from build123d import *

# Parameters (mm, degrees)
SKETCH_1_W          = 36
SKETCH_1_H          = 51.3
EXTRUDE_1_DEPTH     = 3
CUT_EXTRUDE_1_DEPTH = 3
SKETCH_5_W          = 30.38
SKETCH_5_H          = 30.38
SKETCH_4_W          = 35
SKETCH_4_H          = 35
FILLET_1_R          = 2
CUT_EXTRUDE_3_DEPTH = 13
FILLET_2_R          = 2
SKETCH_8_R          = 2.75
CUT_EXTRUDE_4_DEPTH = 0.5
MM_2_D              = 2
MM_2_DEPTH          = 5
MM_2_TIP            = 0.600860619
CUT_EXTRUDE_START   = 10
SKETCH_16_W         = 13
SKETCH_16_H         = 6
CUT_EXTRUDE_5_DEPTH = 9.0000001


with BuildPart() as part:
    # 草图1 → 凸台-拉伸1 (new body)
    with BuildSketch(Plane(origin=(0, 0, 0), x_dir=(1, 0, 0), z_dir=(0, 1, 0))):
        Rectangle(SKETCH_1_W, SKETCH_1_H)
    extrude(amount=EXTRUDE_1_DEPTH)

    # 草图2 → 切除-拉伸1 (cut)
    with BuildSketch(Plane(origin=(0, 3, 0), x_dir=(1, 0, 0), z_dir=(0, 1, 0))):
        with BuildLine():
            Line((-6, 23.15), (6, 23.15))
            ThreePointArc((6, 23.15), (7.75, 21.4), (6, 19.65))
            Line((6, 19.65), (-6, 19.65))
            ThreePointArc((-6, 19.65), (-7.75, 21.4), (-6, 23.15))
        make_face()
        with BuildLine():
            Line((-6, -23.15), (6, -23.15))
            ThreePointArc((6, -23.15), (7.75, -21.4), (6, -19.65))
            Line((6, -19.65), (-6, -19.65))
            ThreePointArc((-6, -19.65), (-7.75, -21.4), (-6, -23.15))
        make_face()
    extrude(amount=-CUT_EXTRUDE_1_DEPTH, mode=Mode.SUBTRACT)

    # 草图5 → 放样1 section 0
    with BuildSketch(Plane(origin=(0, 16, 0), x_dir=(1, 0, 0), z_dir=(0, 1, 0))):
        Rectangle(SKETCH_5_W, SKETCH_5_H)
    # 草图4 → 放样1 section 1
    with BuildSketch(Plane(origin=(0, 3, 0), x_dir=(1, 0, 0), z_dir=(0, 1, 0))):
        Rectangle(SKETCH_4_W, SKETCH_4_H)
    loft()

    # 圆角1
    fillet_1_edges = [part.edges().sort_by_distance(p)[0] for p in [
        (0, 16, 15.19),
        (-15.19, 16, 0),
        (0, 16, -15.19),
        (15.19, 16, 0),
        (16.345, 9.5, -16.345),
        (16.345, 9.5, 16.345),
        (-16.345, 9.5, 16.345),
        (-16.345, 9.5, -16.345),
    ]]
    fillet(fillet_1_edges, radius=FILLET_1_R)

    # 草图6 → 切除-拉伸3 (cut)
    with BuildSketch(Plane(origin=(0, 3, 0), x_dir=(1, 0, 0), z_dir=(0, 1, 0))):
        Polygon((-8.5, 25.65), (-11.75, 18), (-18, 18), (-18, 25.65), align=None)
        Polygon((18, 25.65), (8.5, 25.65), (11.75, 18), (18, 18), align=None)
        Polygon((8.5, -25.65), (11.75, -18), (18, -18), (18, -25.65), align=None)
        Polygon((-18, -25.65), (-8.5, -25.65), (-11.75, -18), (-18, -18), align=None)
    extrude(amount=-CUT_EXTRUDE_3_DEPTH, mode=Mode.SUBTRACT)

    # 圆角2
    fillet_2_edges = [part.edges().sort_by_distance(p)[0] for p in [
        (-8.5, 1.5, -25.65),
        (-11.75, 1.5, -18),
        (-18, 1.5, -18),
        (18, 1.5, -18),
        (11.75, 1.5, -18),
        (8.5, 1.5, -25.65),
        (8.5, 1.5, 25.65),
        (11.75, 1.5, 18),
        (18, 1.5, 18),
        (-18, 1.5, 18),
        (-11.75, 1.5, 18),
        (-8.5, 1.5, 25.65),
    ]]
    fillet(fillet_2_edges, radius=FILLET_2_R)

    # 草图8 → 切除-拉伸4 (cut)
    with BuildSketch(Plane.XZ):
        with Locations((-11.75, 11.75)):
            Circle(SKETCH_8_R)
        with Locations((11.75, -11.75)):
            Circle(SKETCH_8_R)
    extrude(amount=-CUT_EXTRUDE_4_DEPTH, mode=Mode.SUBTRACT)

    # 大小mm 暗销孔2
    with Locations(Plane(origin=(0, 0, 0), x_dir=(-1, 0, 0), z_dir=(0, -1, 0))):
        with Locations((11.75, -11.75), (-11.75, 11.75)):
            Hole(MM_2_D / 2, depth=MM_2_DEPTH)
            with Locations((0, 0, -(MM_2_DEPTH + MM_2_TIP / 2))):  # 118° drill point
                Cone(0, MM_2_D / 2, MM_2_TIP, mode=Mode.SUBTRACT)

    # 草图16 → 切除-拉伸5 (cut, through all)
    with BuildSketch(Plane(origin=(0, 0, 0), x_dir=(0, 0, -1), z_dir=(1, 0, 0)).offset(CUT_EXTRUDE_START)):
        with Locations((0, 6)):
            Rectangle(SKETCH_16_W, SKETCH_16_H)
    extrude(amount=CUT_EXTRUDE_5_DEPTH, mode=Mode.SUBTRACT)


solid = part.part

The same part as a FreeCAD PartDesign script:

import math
import FreeCAD as App
import Part
import Sketcher
Q = App.Units.Quantity


def edges_at(feature, points):
    """Names of the edges that pass closest to the given points."""
    edges = feature.Shape.Edges
    near = lambda p: min(range(len(edges)), key=lambda i: edges[i].distToShape(Part.Vertex(*p))[0])
    return sorted({f"Edge{near(p) + 1}" for p in points})


def add_polygon(sketch, points):
    """Adds a closed chain of lines whose ends are joined by coincident constraints."""
    first, n = sketch.GeometryCount, len(points)
    for a, b in zip(points, points[1:] + points[:1]):
        sketch.addGeometry(Part.LineSegment(App.Vector(*a, 0), App.Vector(*b, 0)), False)
    for i in range(n):
        sketch.addConstraint(Sketcher.Constraint("Coincident", first + i, 2, first + (i + 1) % n, 1))

doc = App.newDocument("Part")
params = doc.addObject("Spreadsheet::Sheet", "Params")
for row, (alias, value) in enumerate([
    ("sketch1_width", "36 mm"),
    ("sketch1_height", "51.3 mm"),
    ("pad1_length", "3 mm"),
    ("sketch2_width", "12 mm"),
    ("sketch2_radius", "1.75 mm"),
    ("pocket1_length", "3 mm"),
    ("sketch3_width", "30.38 mm"),
    ("sketch4_width", "35 mm"),
    ("fillet_radius", "2 mm"),
    ("sketch5_width", "9.5 mm"),
    ("sketch5_width2", "6.25 mm"),
    ("sketch5_height", "7.65 mm"),
    ("pocket2_length", "13 mm"),
    ("fillet2_radius", "2 mm"),
    ("sketch6_diameter", "5.5 mm"),
    ("pocket3_length", "0.5 mm"),
    ("sketch7_diameter", "2 mm"),
    ("hole_diameter", "2 mm"),
    ("hole_depth", "5 mm"),
    ("sketch8_width", "6 mm"),
    ("sketch8_height", "13 mm"),
], start=1):
    params.set(f"A{row}", alias)
    params.set(f"B{row}", "=" + value)
    params.setAlias(f"B{row}", alias)

body = doc.addObject("PartDesign::Body", "Body")

# Sketch on XZ plane
sketch1 = body.newObject("Sketcher::SketchObject", "Sketch")
sketch1.AttachmentSupport = (doc.getObject("XZ_Plane"), [""])
sketch1.MapMode = "FlatFace"
add_polygon(sketch1, [(-18, -25.65), (-18, 25.65), (18, 25.65), (18, -25.65)])  # lines 0-3
sketch1.addConstraint([
    Sketcher.Constraint("Vertical", 0),
    Sketcher.Constraint("Horizontal", 1),
    Sketcher.Constraint("Vertical", 2),
    Sketcher.Constraint("Horizontal", 3),
    Sketcher.Constraint("Symmetric", 0, 2, 2, 2, -1, 1),
    Sketcher.Constraint("DistanceX", 1, 1, 1, 2, Q("36 mm")),
    Sketcher.Constraint("DistanceY", 0, 1, 0, 2, Q("51.3 mm")),
])
sketch1.setExpression("Constraints[9]", "Params.sketch1_width")
sketch1.setExpression("Constraints[10]", "Params.sketch1_height")
pad1 = body.newObject("PartDesign::Pad", "Pad")
pad1.Profile = sketch1
pad1.setExpression("Length", "Params.pad1_length")
pad1.Reversed = True

# Sketch on XZ plane
sketch2 = body.newObject("Sketcher::SketchObject", "Sketch001")
sketch2.AttachmentSupport = (doc.getObject("XZ_Plane"), [""])
sketch2.MapMode = "FlatFace"
sketch2.AttachmentOffset = App.Placement(App.Vector(0, 0, -3), App.Rotation())
sketch2.addGeometry([
    Part.LineSegment(App.Vector(6, -23.15, 0), App.Vector(-6, -23.15, 0)),  # 0
    Part.ArcOfCircle(Part.Circle(App.Vector(-6, -21.4, 0), App.Vector(0, 0, 1), 1.75), math.radians(90), math.radians(270)),  # 1
    Part.LineSegment(App.Vector(-6, -19.65, 0), App.Vector(6, -19.65, 0)),  # 2
    Part.ArcOfCircle(Part.Circle(App.Vector(6, -21.4, 0), App.Vector(0, 0, 1), 1.75), math.radians(-90), math.radians(90)),  # 3
    Part.LineSegment(App.Vector(-6, 23.15, 0), App.Vector(6, 23.15, 0)),  # 4
    Part.ArcOfCircle(Part.Circle(App.Vector(6, 21.4, 0), App.Vector(0, 0, 1), 1.75), math.radians(-90), math.radians(90)),  # 5
    Part.LineSegment(App.Vector(6, 19.65, 0), App.Vector(-6, 19.65, 0)),  # 6
    Part.ArcOfCircle(Part.Circle(App.Vector(-6, 21.4, 0), App.Vector(0, 0, 1), 1.75), math.radians(90), math.radians(270)),  # 7
], False)
sketch2.addConstraint([
    Sketcher.Constraint("Tangent", 0, 2, 1, 2),
    Sketcher.Constraint("Tangent", 1, 1, 2, 1),
    Sketcher.Constraint("Tangent", 2, 2, 3, 2),
    Sketcher.Constraint("Tangent", 3, 1, 0, 1),
    Sketcher.Constraint("Tangent", 4, 2, 5, 2),
    Sketcher.Constraint("Tangent", 5, 1, 6, 1),
    Sketcher.Constraint("Tangent", 6, 2, 7, 2),
    Sketcher.Constraint("Tangent", 7, 1, 4, 1),
    Sketcher.Constraint("Horizontal", 0),
    Sketcher.Constraint("Horizontal", 2),
    Sketcher.Constraint("Horizontal", 4),
    Sketcher.Constraint("Horizontal", 6),
    Sketcher.Constraint("Equal", 3, 5),
    Sketcher.Constraint("Symmetric", 1, 3, 5, 3, -1, 1),
    Sketcher.Constraint("Vertical", 3, 3, 5, 3),
    Sketcher.Constraint("Vertical", 1, 3, 7, 3),
    Sketcher.Constraint("DistanceX", 0, 2, 0, 1, Q("12 mm")),
    Sketcher.Constraint("Radius", 1, Q("1.75 mm")),
    Sketcher.Constraint("DistanceY", 1, 3, -1, 1, Q("21.4 mm")),
])
sketch2.setExpression("Constraints[16]", "Params.sketch2_width")
sketch2.setExpression("Constraints[17]", "Params.sketch2_radius")
pocket1 = body.newObject("PartDesign::Pocket", "Pocket")
pocket1.Profile = sketch2
pocket1.setExpression("Length", "Params.pocket1_length")
pocket1.Reversed = True

# Sketch on XZ plane
sketch3 = body.newObject("Sketcher::SketchObject", "Sketch002")
sketch3.AttachmentSupport = (doc.getObject("XZ_Plane"), [""])
sketch3.MapMode = "FlatFace"
sketch3.AttachmentOffset = App.Placement(App.Vector(0, 0, -16), App.Rotation())
add_polygon(sketch3, [(-15.19, -15.19), (-15.19, 15.19), (15.19, 15.19), (15.19, -15.19)])  # lines 0-3
sketch3.addConstraint([
    Sketcher.Constraint("Vertical", 0),
    Sketcher.Constraint("Horizontal", 1),
    Sketcher.Constraint("Vertical", 2),
    Sketcher.Constraint("Horizontal", 3),
    Sketcher.Constraint("Symmetric", 0, 2, 2, 2, -1, 1),
    Sketcher.Constraint("Equal", 3, 0),
    Sketcher.Constraint("DistanceX", 1, 1, 1, 2, Q("30.38 mm")),
])
sketch3.setExpression("Constraints[10]", "Params.sketch3_width")

# Sketch on XZ plane
sketch4 = body.newObject("Sketcher::SketchObject", "Sketch003")
sketch4.AttachmentSupport = (doc.getObject("XZ_Plane"), [""])
sketch4.MapMode = "FlatFace"
sketch4.AttachmentOffset = App.Placement(App.Vector(0, 0, -3), App.Rotation())
add_polygon(sketch4, [(-17.5, -17.5), (-17.5, 17.5), (17.5, 17.5), (17.5, -17.5)])  # lines 0-3
sketch4.addConstraint([
    Sketcher.Constraint("Vertical", 0),
    Sketcher.Constraint("Horizontal", 1),
    Sketcher.Constraint("Vertical", 2),
    Sketcher.Constraint("Horizontal", 3),
    Sketcher.Constraint("Symmetric", 0, 2, 2, 2, -1, 1),
    Sketcher.Constraint("Equal", 3, 0),
    Sketcher.Constraint("DistanceX", 1, 1, 1, 2, Q("35 mm")),
])
sketch4.setExpression("Constraints[10]", "Params.sketch4_width")

additiveloft = body.newObject("PartDesign::AdditiveLoft", "AdditiveLoft")
additiveloft.Profile = sketch3
additiveloft.Sections = [sketch4]
doc.recompute()

fillet = body.newObject("PartDesign::Fillet", "Fillet")
fillet.Base = (additiveloft, edges_at(additiveloft, [
    (0, 16, 15.19),
    (-15.19, 16, 0),
    (0, 16, -15.19),
    (15.19, 16, 0),
    (16.345, 9.5, -16.345),
    (16.345, 9.5, 16.345),
    (-16.345, 9.5, 16.345),
    (-16.345, 9.5, -16.345),
]))
fillet.setExpression("Radius", "Params.fillet_radius")

# Sketch on XZ plane
sketch5 = body.newObject("Sketcher::SketchObject", "Sketch004")
sketch5.AttachmentSupport = (doc.getObject("XZ_Plane"), [""])
sketch5.MapMode = "FlatFace"
sketch5.AttachmentOffset = App.Placement(App.Vector(0, 0, -3), App.Rotation())
add_polygon(sketch5, [(-11.75, -18), (-8.5, -25.65), (-18, -25.65), (-18, -18)])  # lines 0-3
add_polygon(sketch5, [(18, -25.65), (8.5, -25.65), (11.75, -18), (18, -18)])  # lines 4-7
add_polygon(sketch5, [(11.75, 18), (8.5, 25.65), (18, 25.65), (18, 18)])  # lines 8-11
add_polygon(sketch5, [(-18, 25.65), (-8.5, 25.65), (-11.75, 18), (-18, 18)])  # lines 12-15
sketch5.addConstraint([
    Sketcher.Constraint("Horizontal", 1),
    Sketcher.Constraint("Vertical", 2),
    Sketcher.Constraint("Horizontal", 3),
    Sketcher.Constraint("Horizontal", 4),
    Sketcher.Constraint("Horizontal", 6),
    Sketcher.Constraint("Vertical", 7),
    Sketcher.Constraint("Horizontal", 9),
    Sketcher.Constraint("Vertical", 10),
    Sketcher.Constraint("Horizontal", 11),
    Sketcher.Constraint("Horizontal", 12),
    Sketcher.Constraint("Horizontal", 14),
    Sketcher.Constraint("Vertical", 15),
    Sketcher.Constraint("Symmetric", 0, 2, 8, 2, -1, 1),
    Sketcher.Constraint("Symmetric", 2, 2, 10, 2, -1, 1),
    Sketcher.Constraint("Symmetric", 4, 2, 12, 2, -1, 1),
    Sketcher.Constraint("Symmetric", 5, 2, 13, 2, -1, 1),
    Sketcher.Constraint("Symmetric", 0, 2, 4, 2, -2),
    Sketcher.Constraint("Symmetric", 3, 2, 5, 2, -2),
    Sketcher.Constraint("Parallel", 0, 8),
    Sketcher.Constraint("Vertical", 7, 2, 9, 2),
    Sketcher.Constraint("Vertical", 2, 2, 14, 2),
    Sketcher.Constraint("DistanceX", 1, 2, 1, 1, Q("9.5 mm")),
    Sketcher.Constraint("DistanceX", 1, 2, -1, 1, Q("18 mm")),
    Sketcher.Constraint("DistanceY", 2, 2, -1, 1, Q("18 mm")),
    Sketcher.Constraint("DistanceX", 3, 1, 3, 2, Q("6.25 mm")),
    Sketcher.Constraint("DistanceY", 2, 1, 2, 2, Q("7.65 mm")),
])
sketch5.setExpression("Constraints[37]", "Params.sketch5_width")
sketch5.setExpression("Constraints[40]", "Params.sketch5_width2")
sketch5.setExpression("Constraints[41]", "Params.sketch5_height")
pocket2 = body.newObject("PartDesign::Pocket", "Pocket001")
pocket2.Profile = sketch5
pocket2.setExpression("Length", "Params.pocket2_length")
pocket2.Reversed = True
doc.recompute()

fillet2 = body.newObject("PartDesign::Fillet", "Fillet001")
fillet2.Base = (pocket2, edges_at(pocket2, [
    (-8.5, 1.5, -25.65),
    (-11.75, 1.5, -18),
    (-18, 1.5, -18),
    (18, 1.5, -18),
    (11.75, 1.5, -18),
    (8.5, 1.5, -25.65),
    (8.5, 1.5, 25.65),
    (11.75, 1.5, 18),
    (18, 1.5, 18),
    (-18, 1.5, 18),
    (-11.75, 1.5, 18),
    (-8.5, 1.5, 25.65),
]))
fillet2.setExpression("Radius", "Params.fillet2_radius")

# Sketch on XZ plane
sketch6 = body.newObject("Sketcher::SketchObject", "Sketch005")
sketch6.AttachmentSupport = (doc.getObject("XZ_Plane"), [""])
sketch6.MapMode = "FlatFace"
sketch6.addGeometry([
    Part.Circle(App.Vector(-11.75, 11.75, 0), App.Vector(0, 0, 1), 2.75),
    Part.Circle(App.Vector(11.75, -11.75, 0), App.Vector(0, 0, 1), 2.75),
], False)
sketch6.addConstraint([
    Sketcher.Constraint("Equal", 0, 1),
    Sketcher.Constraint("Symmetric", 0, 3, 1, 3, -1, 1),
    Sketcher.Constraint("Diameter", 0, Q("5.5 mm")),
    Sketcher.Constraint("DistanceX", 0, 3, 1, 3, Q("23.5 mm")),
    Sketcher.Constraint("DistanceY", 1, 3, 0, 3, Q("23.5 mm")),
])
sketch6.setExpression("Constraints[2]", "Params.sketch6_diameter")
pocket3 = body.newObject("PartDesign::Pocket", "Pocket002")
pocket3.Profile = sketch6
pocket3.setExpression("Length", "Params.pocket3_length")

# Sketch on XZ plane
sketch7 = body.newObject("Sketcher::SketchObject", "Sketch006")
sketch7.AttachmentSupport = (doc.getObject("XZ_Plane"), [""])
sketch7.MapMode = "FlatFace"
sketch7.addGeometry([
    Part.Circle(App.Vector(-11.75, 11.75, 0), App.Vector(0, 0, 1), 1),
    Part.Circle(App.Vector(11.75, -11.75, 0), App.Vector(0, 0, 1), 1),
], False)
sketch7.addConstraint([
    Sketcher.Constraint("Equal", 0, 1),
    Sketcher.Constraint("Symmetric", 0, 3, 1, 3, -1, 1),
    Sketcher.Constraint("Diameter", 0, Q("2 mm")),
    Sketcher.Constraint("DistanceX", 0, 3, 1, 3, Q("23.5 mm")),
    Sketcher.Constraint("DistanceY", 1, 3, 0, 3, Q("23.5 mm")),
])
sketch7.setExpression("Constraints[2]", "Params.sketch7_diameter")
doc.recompute()
hole = body.newObject("PartDesign::Hole", "Hole")
hole.Profile = sketch7
hole.ThreadType = "None"
hole.setExpression("Diameter", "Params.hole_diameter")
hole.DepthType = "Dimension"
hole.setExpression("Depth", "Params.hole_depth")
hole.DrillPoint = "Angled"
hole.DrillPointAngle = 118

# Sketch on YZ plane
sketch8 = body.newObject("Sketcher::SketchObject", "Sketch007")
sketch8.AttachmentSupport = (doc.getObject("YZ_Plane"), [""])
sketch8.MapMode = "FlatFace"
sketch8.AttachmentOffset = App.Placement(App.Vector(0, 0, 10), App.Rotation())
add_polygon(sketch8, [(9, 6.5), (3, 6.5), (3, -6.5), (9, -6.5)])  # lines 0-3
sketch8.addConstraint([
    Sketcher.Constraint("Horizontal", 0),
    Sketcher.Constraint("Vertical", 1),
    Sketcher.Constraint("Horizontal", 2),
    Sketcher.Constraint("Vertical", 3),
    Sketcher.Constraint("DistanceX", 0, 2, 0, 1, Q("6 mm")),
    Sketcher.Constraint("DistanceY", 1, 2, 1, 1, Q("13 mm")),
    Sketcher.Constraint("DistanceX", -1, 1, 0, 2, Q("3 mm")),
    Sketcher.Constraint("DistanceY", -1, 1, 0, 2, Q("6.5 mm")),
])
sketch8.setExpression("Constraints[8]", "Params.sketch8_width")
sketch8.setExpression("Constraints[9]", "Params.sketch8_height")
pocket4 = body.newObject("PartDesign::Pocket", "Pocket003")
pocket4.Profile = sketch8
pocket4.Type = "ThroughAll"
pocket4.Reversed = True

doc.recompute()
